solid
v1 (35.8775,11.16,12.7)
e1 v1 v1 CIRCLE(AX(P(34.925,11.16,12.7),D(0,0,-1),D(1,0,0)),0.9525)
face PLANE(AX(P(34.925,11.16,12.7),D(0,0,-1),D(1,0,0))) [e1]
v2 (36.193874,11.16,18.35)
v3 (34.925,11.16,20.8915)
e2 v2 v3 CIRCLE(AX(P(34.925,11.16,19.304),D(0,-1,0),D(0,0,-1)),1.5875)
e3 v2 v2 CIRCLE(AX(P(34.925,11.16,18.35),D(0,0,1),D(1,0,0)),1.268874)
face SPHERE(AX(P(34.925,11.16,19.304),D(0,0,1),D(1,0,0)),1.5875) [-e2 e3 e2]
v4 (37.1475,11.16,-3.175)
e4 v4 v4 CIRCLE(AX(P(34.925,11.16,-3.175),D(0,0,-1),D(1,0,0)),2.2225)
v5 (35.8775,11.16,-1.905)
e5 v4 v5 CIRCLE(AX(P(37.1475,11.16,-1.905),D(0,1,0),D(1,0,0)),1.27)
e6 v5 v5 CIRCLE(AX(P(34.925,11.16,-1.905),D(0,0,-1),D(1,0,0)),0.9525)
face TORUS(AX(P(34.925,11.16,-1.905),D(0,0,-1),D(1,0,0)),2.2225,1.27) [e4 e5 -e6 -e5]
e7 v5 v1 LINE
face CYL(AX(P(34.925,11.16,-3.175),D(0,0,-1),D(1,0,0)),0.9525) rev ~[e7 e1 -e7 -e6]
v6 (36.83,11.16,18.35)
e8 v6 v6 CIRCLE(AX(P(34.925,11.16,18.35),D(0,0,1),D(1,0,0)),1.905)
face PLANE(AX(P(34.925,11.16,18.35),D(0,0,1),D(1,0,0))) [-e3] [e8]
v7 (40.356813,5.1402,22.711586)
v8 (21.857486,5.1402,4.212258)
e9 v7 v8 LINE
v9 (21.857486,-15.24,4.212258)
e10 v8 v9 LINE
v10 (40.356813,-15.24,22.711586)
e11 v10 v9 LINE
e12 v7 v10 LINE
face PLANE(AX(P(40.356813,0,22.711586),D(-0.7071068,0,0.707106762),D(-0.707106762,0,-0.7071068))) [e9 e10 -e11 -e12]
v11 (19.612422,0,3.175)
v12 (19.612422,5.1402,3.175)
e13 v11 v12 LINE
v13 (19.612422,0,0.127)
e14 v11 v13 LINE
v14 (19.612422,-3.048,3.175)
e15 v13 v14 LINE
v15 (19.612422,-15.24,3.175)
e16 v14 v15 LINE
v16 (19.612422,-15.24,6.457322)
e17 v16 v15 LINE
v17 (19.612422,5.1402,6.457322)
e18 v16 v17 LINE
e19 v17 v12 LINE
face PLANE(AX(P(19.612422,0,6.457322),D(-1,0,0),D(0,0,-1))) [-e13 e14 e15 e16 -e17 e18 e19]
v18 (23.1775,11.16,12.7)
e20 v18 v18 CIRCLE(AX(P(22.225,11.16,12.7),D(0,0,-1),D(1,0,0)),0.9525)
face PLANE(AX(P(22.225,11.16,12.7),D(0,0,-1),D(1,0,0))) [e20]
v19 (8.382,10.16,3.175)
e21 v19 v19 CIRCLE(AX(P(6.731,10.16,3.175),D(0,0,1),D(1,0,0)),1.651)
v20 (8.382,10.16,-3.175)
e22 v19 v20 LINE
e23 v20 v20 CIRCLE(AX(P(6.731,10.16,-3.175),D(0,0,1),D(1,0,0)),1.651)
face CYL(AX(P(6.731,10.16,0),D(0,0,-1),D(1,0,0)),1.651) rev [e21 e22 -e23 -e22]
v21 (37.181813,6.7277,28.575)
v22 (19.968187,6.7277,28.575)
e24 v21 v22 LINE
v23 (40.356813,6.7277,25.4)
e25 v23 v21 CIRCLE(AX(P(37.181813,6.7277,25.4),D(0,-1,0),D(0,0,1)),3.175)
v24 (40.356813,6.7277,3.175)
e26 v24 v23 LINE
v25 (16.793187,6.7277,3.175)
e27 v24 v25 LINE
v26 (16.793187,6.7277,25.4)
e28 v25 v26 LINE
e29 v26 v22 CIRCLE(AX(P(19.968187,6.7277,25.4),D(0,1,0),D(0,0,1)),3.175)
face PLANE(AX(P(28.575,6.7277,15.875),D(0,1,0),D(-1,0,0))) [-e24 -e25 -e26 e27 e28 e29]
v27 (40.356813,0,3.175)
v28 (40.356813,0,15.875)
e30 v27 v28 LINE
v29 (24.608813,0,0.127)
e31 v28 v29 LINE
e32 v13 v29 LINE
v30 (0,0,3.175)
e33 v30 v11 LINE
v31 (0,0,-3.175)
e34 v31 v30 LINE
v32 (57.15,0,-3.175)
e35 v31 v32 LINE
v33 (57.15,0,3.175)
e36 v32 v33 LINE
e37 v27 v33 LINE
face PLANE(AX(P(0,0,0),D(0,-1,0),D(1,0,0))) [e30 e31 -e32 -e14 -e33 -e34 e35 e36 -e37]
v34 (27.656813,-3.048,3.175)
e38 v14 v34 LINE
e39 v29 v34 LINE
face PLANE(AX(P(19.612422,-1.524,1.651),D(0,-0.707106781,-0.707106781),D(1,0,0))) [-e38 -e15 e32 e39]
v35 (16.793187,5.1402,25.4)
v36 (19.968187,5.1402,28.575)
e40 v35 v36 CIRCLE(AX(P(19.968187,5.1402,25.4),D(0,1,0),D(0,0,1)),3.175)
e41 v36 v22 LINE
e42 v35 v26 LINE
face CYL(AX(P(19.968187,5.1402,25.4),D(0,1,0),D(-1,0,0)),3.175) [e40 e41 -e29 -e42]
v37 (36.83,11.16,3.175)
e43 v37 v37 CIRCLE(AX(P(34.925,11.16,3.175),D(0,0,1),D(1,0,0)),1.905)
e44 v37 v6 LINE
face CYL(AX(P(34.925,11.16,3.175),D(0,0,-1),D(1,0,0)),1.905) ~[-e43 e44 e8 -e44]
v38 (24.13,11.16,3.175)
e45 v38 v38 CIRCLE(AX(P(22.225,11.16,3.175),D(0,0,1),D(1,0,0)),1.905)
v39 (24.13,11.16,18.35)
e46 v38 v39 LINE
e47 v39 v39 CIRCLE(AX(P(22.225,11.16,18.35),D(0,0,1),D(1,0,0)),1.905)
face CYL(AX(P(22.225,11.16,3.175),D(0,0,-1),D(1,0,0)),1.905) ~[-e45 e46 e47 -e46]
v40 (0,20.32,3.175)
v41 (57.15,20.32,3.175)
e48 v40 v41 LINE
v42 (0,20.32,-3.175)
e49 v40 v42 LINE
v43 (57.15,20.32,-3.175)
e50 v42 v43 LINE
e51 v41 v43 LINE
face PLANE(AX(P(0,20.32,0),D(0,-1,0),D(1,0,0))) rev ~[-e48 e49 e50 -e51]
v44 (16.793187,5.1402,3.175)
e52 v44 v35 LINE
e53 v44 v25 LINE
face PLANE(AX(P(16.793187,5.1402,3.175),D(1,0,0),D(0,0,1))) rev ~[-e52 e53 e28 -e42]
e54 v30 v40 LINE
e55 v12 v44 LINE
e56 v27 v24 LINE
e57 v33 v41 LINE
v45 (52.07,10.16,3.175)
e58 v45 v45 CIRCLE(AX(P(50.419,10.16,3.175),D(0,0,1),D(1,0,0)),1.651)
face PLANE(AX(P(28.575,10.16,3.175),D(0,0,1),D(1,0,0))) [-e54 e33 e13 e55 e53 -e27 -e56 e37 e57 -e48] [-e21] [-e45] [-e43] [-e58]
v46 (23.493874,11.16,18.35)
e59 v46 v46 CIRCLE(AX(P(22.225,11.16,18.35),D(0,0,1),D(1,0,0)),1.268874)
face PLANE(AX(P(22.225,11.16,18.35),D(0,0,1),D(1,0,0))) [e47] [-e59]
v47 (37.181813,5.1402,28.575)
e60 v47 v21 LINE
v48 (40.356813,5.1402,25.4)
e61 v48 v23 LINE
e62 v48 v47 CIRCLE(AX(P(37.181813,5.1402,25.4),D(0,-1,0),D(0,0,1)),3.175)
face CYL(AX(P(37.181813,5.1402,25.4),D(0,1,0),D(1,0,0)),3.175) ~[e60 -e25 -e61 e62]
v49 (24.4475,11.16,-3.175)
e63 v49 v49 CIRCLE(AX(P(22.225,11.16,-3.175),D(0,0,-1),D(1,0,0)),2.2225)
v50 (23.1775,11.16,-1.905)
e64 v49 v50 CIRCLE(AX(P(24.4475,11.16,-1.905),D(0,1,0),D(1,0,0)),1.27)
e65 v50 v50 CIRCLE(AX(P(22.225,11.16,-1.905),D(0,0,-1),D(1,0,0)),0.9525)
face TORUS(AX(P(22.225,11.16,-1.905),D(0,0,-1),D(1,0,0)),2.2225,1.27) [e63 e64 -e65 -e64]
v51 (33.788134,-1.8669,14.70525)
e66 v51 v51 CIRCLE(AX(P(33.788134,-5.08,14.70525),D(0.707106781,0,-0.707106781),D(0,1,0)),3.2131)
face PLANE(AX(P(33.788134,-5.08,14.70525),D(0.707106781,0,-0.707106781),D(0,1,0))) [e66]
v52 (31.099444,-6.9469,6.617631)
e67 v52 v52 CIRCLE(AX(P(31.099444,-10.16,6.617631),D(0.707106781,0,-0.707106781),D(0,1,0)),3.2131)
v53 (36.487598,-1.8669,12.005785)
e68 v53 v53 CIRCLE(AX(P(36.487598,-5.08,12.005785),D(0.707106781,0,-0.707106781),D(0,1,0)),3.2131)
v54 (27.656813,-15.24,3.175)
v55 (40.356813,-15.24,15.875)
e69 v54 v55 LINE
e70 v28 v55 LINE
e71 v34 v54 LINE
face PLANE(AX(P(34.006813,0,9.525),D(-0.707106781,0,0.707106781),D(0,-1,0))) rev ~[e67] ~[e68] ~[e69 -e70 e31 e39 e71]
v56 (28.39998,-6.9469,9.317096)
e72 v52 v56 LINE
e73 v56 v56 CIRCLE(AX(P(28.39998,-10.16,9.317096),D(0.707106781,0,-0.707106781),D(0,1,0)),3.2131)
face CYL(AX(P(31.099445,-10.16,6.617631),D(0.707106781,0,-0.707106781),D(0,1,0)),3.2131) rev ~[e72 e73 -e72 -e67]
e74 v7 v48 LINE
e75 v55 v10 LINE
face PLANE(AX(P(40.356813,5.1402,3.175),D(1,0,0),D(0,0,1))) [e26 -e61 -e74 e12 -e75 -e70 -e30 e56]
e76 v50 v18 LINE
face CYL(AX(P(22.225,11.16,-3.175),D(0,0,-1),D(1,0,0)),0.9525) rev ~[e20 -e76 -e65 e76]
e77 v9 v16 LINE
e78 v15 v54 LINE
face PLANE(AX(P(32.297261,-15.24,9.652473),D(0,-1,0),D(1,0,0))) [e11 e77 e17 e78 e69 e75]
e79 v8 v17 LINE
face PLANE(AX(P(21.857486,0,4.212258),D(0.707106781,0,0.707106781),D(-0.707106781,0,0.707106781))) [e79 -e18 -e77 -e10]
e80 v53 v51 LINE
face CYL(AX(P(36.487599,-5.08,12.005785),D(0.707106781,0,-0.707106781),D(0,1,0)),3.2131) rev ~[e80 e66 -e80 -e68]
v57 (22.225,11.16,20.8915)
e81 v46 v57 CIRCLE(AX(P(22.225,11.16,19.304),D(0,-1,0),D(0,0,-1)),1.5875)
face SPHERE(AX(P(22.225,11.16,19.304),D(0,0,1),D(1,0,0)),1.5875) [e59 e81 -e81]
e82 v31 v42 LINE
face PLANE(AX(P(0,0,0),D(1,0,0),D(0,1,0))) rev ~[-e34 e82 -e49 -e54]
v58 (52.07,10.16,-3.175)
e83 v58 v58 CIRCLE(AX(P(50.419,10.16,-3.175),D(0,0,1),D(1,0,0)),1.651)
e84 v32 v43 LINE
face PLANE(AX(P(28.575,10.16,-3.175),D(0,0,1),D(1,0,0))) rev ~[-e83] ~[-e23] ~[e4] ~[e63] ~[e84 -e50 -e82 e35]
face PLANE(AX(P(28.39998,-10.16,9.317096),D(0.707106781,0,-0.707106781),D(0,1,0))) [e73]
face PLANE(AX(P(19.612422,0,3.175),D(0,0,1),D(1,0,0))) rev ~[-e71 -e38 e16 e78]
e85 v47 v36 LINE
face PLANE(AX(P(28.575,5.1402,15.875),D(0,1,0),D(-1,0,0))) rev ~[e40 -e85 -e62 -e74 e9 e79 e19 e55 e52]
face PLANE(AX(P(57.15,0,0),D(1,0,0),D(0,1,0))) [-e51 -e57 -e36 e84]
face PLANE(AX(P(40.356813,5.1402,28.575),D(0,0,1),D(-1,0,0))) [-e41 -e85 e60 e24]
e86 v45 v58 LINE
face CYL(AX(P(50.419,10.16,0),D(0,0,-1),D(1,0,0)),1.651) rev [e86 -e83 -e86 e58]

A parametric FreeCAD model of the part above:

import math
import FreeCAD as App
import Part
import Sketcher
Q = App.Units.Quantity


def edges_at(feature, points):
    """Names of the edges that pass closest to the given points."""
    edges = feature.Shape.Edges
    near = lambda p: min(range(len(edges)), key=lambda i: edges[i].distToShape(Part.Vertex(*p))[0])
    return sorted({f"Edge{near(p) + 1}" for p in points})

doc = App.newDocument("Part")
body = doc.addObject("PartDesign::Body", "Body")

sketch1 = body.newObject("Sketcher::SketchObject", "Sketch")
sketch1.AttachmentSupport = (doc.getObject("XZ_Plane"), [""])
sketch1.MapMode = "FlatFace"
sketch1.AttachmentOffset = App.Placement(App.Vector(0, 0, -11.16), App.Rotation())
sketch1.addGeometry([
    Part.ArcOfCircle(Part.Circle(App.Vector(34.9, 19.3, 0), App.Vector(0, 0, 1), 1.6), math.radians(-90), math.radians(90)),
    Part.LineSegment(App.Vector(34.9, 20.9, 0), App.Vector(34.9, 17.7, 0)),
], False)
sketch1.addGeometry(Part.LineSegment(App.Vector(34.9, 17.7, 0), App.Vector(34.9, 20.9, 0)), True)
sketch1.addConstraint([
    Sketcher.Constraint("Coincident", 0, 1, 1, 2),
    Sketcher.Constraint("Coincident", 1, 1, 0, 2),
    Sketcher.Constraint("Vertical", 1),
    Sketcher.Constraint("Vertical", 2),
    Sketcher.Constraint("Coincident", 2, 1, 0, 1),
    Sketcher.Constraint("Equal", 1, 2),
    Sketcher.Constraint("Radius", 0, Q("0.0625 in")),
    Sketcher.Constraint("DistanceY", -1, 1, 0, 3, Q("0.76 in")),
    Sketcher.Constraint("DistanceX", -1, 1, 0, 3, Q("1.375 in")),
    Sketcher.Constraint("DistanceX", -1, 1, 0, 1, Q("1.375 in")),
])
revolution = body.newObject("PartDesign::Revolution", "Revolution")
revolution.Profile = sketch1
revolution.ReferenceAxis = (sketch1, ["Axis0"])
revolution.Angle = 360
body2 = doc.addObject("PartDesign::Body", "Body001")

sketch2 = body2.newObject("Sketcher::SketchObject", "Sketch001")
sketch2.AttachmentSupport = (doc.getObject("XZ_Plane001"), [""])
sketch2.MapMode = "FlatFace"
sketch2.AttachmentOffset = App.Placement(App.Vector(0, 0, -11.16), App.Rotation())
sketch2.addGeometry([
    Part.ArcOfCircle(Part.Circle(App.Vector(22.2, 19.3, 0), App.Vector(0, 0, 1), 1.6), math.radians(-90), math.radians(90)),
    Part.LineSegment(App.Vector(22.2, 20.9, 0), App.Vector(22.2, 17.7, 0)),
], False)
sketch2.addGeometry(Part.LineSegment(App.Vector(22.2, 17.7, 0), App.Vector(22.2, 20.9, 0)), True)
sketch2.addConstraint([
    Sketcher.Constraint("Coincident", 0, 1, 1, 2),
    Sketcher.Constraint("Coincident", 1, 1, 0, 2),
    Sketcher.Constraint("Vertical", 1),
    Sketcher.Constraint("Vertical", 2),
    Sketcher.Constraint("Coincident", 2, 1, 0, 1),
    Sketcher.Constraint("Equal", 1, 2),
    Sketcher.Constraint("Radius", 0, Q("0.0625 in")),
    Sketcher.Constraint("DistanceY", -1, 1, 0, 3, Q("0.76 in")),
    Sketcher.Constraint("DistanceX", -1, 1, 0, 3, Q("0.875 in")),
    Sketcher.Constraint("DistanceX", -1, 1, 0, 1, Q("0.875 in")),
])
revolution2 = body2.newObject("PartDesign::Revolution", "Revolution001")
revolution2.Profile = sketch2
revolution2.ReferenceAxis = (sketch2, ["Axis0"])
revolution2.Angle = 360
body3 = doc.addObject("PartDesign::Body", "Body002")

sketch3 = body3.newObject("Sketcher::SketchObject", "Sketch002")
sketch3.AttachmentSupport = (doc.getObject("XY_Plane002"), [""])
sketch3.MapMode = "FlatFace"
sketch3.addGeometry([
    Part.LineSegment(App.Vector(0, 20.3, 0), App.Vector(0, 0, 0)),
    Part.LineSegment(App.Vector(0, 0, 0), App.Vector(57.1, 0, 0)),
    Part.LineSegment(App.Vector(57.1, 0, 0), App.Vector(57.1, 20.3, 0)),
    Part.LineSegment(App.Vector(57.1, 20.3, 0), App.Vector(0, 20.3, 0)),
    Part.Circle(App.Vector(6.7, 10.2, 0), App.Vector(0, 0, 1), 1.7),
    Part.Circle(App.Vector(50.4, 10.2, 0), App.Vector(0, 0, 1), 1.7),
], False)
sketch3.addConstraint([
    Sketcher.Constraint("Coincident", 0, 2, 1, 1),
    Sketcher.Constraint("Coincident", 1, 2, 2, 1),
    Sketcher.Constraint("Coincident", 2, 2, 3, 1),
    Sketcher.Constraint("Coincident", 3, 2, 0, 1),
    Sketcher.Constraint("Vertical", 0),
    Sketcher.Constraint("Horizontal", 1),
    Sketcher.Constraint("Vertical", 2),
    Sketcher.Constraint("Horizontal", 3),
    Sketcher.Constraint("Coincident", 0, 2, -1, 1),
    Sketcher.Constraint("Equal", 4, 5),
    Sketcher.Constraint("Horizontal", 4, 3, 5, 3),
    Sketcher.Constraint("Diameter", 4, Q("0.13 in")),
    Sketcher.Constraint("DistanceY", 0, 2, 0, 1, Q("0.8 in")),
    Sketcher.Constraint("DistanceX", 1, 1, 1, 2, Q("2.25 in")),
    Sketcher.Constraint("DistanceY", -1, 1, 4, 3, Q("0.4 in")),
    Sketcher.Constraint("DistanceX", 4, 3, 5, 3, Q("1.72 in")),
    Sketcher.Constraint("DistanceX", -1, 1, 4, 3, Q("0.265 in")),
])
pad1 = body3.newObject("PartDesign::Pad", "Pad")
pad1.Profile = sketch3
pad1.Length = Q("0.25 in")
pad1.Midplane = True

sketch4 = body3.newObject("Sketcher::SketchObject", "Sketch003")
sketch4.AttachmentSupport = (doc.getObject("XY_Plane002"), [""])
sketch4.MapMode = "FlatFace"
sketch4.AttachmentOffset = App.Placement(App.Vector(0, 0, 0.125 * 25.4), App.Rotation())
sketch4.addGeometry([
    Part.Circle(App.Vector(22.2, 11.2, 0), App.Vector(0, 0, 1), 1.9),
    Part.Circle(App.Vector(34.9, 11.2, 0), App.Vector(0, 0, 1), 1.9),
], False)
sketch4.addConstraint([
    Sketcher.Constraint("Equal", 0, 1),
    Sketcher.Constraint("Horizontal", 0, 3, 1, 3),
    Sketcher.Constraint("Diameter", 0, Q("0.15 in")),
    Sketcher.Constraint("DistanceX", 0, 3, 1, 3, Q("0.5 in")),
    Sketcher.Constraint("DistanceX", -1, 1, 0, 3, Q("0.875 in")),
    Sketcher.Constraint("DistanceY", -1, 1, 0, 3, 11.16),
])
pad2 = body3.newObject("PartDesign::Pad", "Pad001")
pad2.Profile = sketch4
pad2.Length = 15.175

sketch5 = body3.newObject("Sketcher::SketchObject", "Sketch004")
sketch5.AttachmentSupport = (doc.getObject("XY_Plane002"), [""])
sketch5.MapMode = "FlatFace"
sketch5.AttachmentOffset = App.Placement(App.Vector(0, 0, -0.125 * 25.4), App.Rotation())
sketch5.addGeometry([
    Part.Circle(App.Vector(22.2, 11.2, 0), App.Vector(0, 0, 1), 1),
    Part.Circle(App.Vector(34.9, 11.2, 0), App.Vector(0, 0, 1), 1),
], False)
sketch5.addConstraint([
    Sketcher.Constraint("Equal", 0, 1),
    Sketcher.Constraint("Horizontal", 0, 3, 1, 3),
    Sketcher.Constraint("Diameter", 0, Q("0.075 in")),
    Sketcher.Constraint("DistanceX", 0, 3, 1, 3, Q("0.5 in")),
    Sketcher.Constraint("DistanceX", -1, 1, 0, 3, Q("0.875 in")),
    Sketcher.Constraint("DistanceY", -1, 1, 0, 3, 11.16),
])
pocket1 = body3.newObject("PartDesign::Pocket", "Pocket")
pocket1.Profile = sketch5
pocket1.Length = Q("0.625 in")
pocket1.Reversed = True

sketch6 = body3.newObject("Sketcher::SketchObject", "Sketch005")
sketch6.AttachmentSupport = (doc.getObject("XZ_Plane002"), [""])
sketch6.MapMode = "FlatFace"
sketch6.addGeometry([
    Part.LineSegment(App.Vector(40.4, 3.2, 0), App.Vector(40.4, 22.7, 0)),
    Part.LineSegment(App.Vector(40.4, 22.7, 0), App.Vector(21.9, 4.2, 0)),
    Part.LineSegment(App.Vector(21.9, 4.2, 0), App.Vector(19.6, 6.5, 0)),
    Part.LineSegment(App.Vector(19.6, 6.5, 0), App.Vector(19.6, 3.2, 0)),
    Part.LineSegment(App.Vector(19.6, 3.2, 0), App.Vector(40.4, 3.2, 0)),
], False)
sketch6.addConstraint([
    Sketcher.Constraint("Coincident", 0, 2, 1, 1),
    Sketcher.Constraint("Coincident", 1, 2, 2, 1),
    Sketcher.Constraint("Coincident", 2, 2, 3, 1),
    Sketcher.Constraint("Coincident", 3, 2, 4, 1),
    Sketcher.Constraint("Coincident", 4, 2, 0, 1),
    Sketcher.Constraint("Vertical", 0),
    Sketcher.Constraint("Vertical", 3),
    Sketcher.Constraint("Horizontal", 4),
    Sketcher.Constraint("Perpendicular", 1, 2),
    Sketcher.Constraint("Angle", 1, Q("-134.999998 deg")),
    Sketcher.Constraint("Distance", 1, Q("1.03 in")),
    Sketcher.Constraint("Distance", 2, Q("0.125 in")),
    Sketcher.Constraint("DistanceY", -1, 1, 3, 2, Q("0.125 in")),
    Sketcher.Constraint("DistanceY", 3, 2, 3, 1, 3.282322),
    Sketcher.Constraint("DistanceX", -1, 1, 2, 2, 19.612422),
])
pad3 = body3.newObject("PartDesign::Pad", "Pad002")
pad3.Profile = sketch6
pad3.Type = "TwoLengths"
pad3.Length = Q("0.6 in")
pad3.Length2 = 5.1402
doc.recompute()

fillet = body3.newObject("PartDesign::Fillet", "Fillet")
fillet.Base = (pad3, edges_at(pad3, [(33.972, 11.16, -3.175), (21.273, 11.16, -3.175)]))
fillet.Radius = Q("0.05 in")
doc.recompute()

chamfer = body3.newObject("PartDesign::Chamfer", "Chamfer")
chamfer.Base = (fillet, edges_at(fillet, [(40.357, -7.62, 3.175)]))
chamfer.Size = Q("0.5 in")
doc.recompute()

chamfer2 = body3.newObject("PartDesign::Chamfer", "Chamfer001")
chamfer2.Base = (chamfer, edges_at(chamfer, [(23.635, 0, 3.175)]))
chamfer2.Size = Q("0.12 in")

sketch7 = body3.newObject("Sketcher::SketchObject", "Sketch006")
sketch7.Placement = App.Placement(App.Vector(12.240907, 0, -12.240907), App.Rotation(App.Vector(0, 1, 0), App.Vector(0.707106781, 0, 0.707106781), App.Vector(0.707106781, 0, -0.707106781), "ZXY"))
sketch7.addGeometry([
    Part.Circle(App.Vector(-10.2, 26.7, 0), App.Vector(0, 0, 1), 3.2),
    Part.Circle(App.Vector(-5.1, 34.3, 0), App.Vector(0, 0, 1), 3.2),
], False)
sketch7.addConstraint([
    Sketcher.Constraint("Equal", 0, 1),
    Sketcher.Constraint("Diameter", 0, Q("0.253 in")),
    Sketcher.Constraint("DistanceX", 0, 3, -1, 1, Q("0.4 in")),
    Sketcher.Constraint("DistanceX", 1, 3, -1, 1, Q("0.2 in")),
    Sketcher.Constraint("DistanceY", 0, 3, 1, 3, Q("0.3 in")),
    Sketcher.Constraint("DistanceY", -1, 1, 0, 3, Q("1.05 in")),
])
pocket2 = body3.newObject("PartDesign::Pocket", "Pocket001")
pocket2.Profile = sketch7
pocket2.Length = Q("0.1503 in")

sketch8 = body3.newObject("Sketcher::SketchObject", "Sketch007")
sketch8.AttachmentSupport = (doc.getObject("XZ_Plane002"), [""])
sketch8.MapMode = "FlatFace"
sketch8.AttachmentOffset = App.Placement(App.Vector(0, 0, -5.1402), App.Rotation())
sketch8.addGeometry([
    Part.LineSegment(App.Vector(40, 29, 0), App.Vector(40, 3, 0)),
    Part.LineSegment(App.Vector(40, 3, 0), App.Vector(17, 3, 0)),
    Part.LineSegment(App.Vector(17, 3, 0), App.Vector(17, 29, 0)),
    Part.LineSegment(App.Vector(17, 29, 0), App.Vector(40, 29, 0)),
], False)
sketch8.addConstraint([
    Sketcher.Constraint("Coincident", 0, 2, 1, 1),
    Sketcher.Constraint("Coincident", 1, 2, 2, 1),
    Sketcher.Constraint("Coincident", 2, 2, 3, 1),
    Sketcher.Constraint("Coincident", 3, 2, 0, 1),
    Sketcher.Constraint("Vertical", 0),
    Sketcher.Constraint("Horizontal", 1),
    Sketcher.Constraint("Vertical", 2),
    Sketcher.Constraint("Horizontal", 3),
    Sketcher.Constraint("DistanceY", 0, 2, 0, 1, Q("1 in")),
    Sketcher.Constraint("DistanceY", -1, 1, 0, 2, Q("0.125 in")),
    Sketcher.Constraint("DistanceX", 1, 2, 1, 1, 23.563626),
    Sketcher.Constraint("DistanceX", -1, 1, 0, 2, 40.356813),
])
pad4 = body3.newObject("PartDesign::Pad", "Pad003")
pad4.Profile = sketch8
pad4.Length = Q("0.0625 in")
pad4.Reversed = True
doc.recompute()

fillet2 = body3.newObject("PartDesign::Fillet", "Fillet001")
fillet2.Base = (pad4, edges_at(pad4, [(40.357, 5.934, 28.575), (16.793, 5.934, 28.575)]))
fillet2.Radius = Q("0.125 in")
doc.recompute()

boolean = body3.newObject("PartDesign::Boolean", "Boolean")
boolean.Type = "Fuse"
boolean.addObjects([body])
doc.recompute()

boolean2 = body3.newObject("PartDesign::Boolean", "Boolean001")
boolean2.Type = "Fuse"
boolean2.addObjects([body2])

doc.recompute()
